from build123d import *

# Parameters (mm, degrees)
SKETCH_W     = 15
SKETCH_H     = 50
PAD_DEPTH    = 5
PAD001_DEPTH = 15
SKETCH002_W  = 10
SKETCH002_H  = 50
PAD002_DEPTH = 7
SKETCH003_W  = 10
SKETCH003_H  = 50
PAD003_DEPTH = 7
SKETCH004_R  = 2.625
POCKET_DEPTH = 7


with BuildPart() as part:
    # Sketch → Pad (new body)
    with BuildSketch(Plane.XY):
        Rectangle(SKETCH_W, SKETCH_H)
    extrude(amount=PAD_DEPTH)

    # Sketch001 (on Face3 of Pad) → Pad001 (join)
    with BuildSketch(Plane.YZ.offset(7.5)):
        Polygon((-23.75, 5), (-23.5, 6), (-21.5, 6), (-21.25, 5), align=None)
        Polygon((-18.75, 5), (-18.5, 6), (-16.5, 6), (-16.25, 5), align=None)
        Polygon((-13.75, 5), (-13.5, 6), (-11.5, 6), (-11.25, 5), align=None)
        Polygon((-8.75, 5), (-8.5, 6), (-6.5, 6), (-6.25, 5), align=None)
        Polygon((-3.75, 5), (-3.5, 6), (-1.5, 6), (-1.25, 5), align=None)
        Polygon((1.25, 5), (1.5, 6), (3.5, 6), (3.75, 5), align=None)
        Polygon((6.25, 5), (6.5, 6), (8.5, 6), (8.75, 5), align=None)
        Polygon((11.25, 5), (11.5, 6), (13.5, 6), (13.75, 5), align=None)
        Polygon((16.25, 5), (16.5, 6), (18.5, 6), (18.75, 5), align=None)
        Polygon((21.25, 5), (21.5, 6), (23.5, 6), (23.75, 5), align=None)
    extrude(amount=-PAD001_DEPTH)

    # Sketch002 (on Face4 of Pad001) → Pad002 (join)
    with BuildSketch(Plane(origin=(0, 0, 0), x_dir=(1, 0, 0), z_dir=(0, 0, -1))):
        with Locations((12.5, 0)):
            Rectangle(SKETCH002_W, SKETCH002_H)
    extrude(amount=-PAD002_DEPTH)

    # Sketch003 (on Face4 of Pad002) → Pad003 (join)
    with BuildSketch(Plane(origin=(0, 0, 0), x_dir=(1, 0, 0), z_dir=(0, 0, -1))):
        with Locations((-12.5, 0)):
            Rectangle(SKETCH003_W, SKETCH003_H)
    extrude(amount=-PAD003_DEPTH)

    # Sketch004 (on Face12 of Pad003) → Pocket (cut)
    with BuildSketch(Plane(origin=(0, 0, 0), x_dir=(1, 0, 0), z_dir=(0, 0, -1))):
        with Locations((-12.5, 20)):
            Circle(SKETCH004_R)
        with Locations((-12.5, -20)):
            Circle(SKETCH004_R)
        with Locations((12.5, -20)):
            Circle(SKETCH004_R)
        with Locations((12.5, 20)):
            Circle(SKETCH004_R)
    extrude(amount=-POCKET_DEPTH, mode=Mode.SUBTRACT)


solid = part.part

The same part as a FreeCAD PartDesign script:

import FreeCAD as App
import Part
import Sketcher

V = App.Vector

doc = App.newDocument("Part")
body = doc.addObject("PartDesign::Body", "Body")

sketch1 = doc.addObject("Sketcher::SketchObject", "Sketch")
body.addObject(sketch1)
sketch1.AttachmentSupport = (doc.XY_Plane, [""])
sketch1.MapMode = "FlatFace"
sketch1.addGeometry(Part.LineSegment(V(-8, 25, 0), V(-8, -25, 0)), False)
sketch1.addGeometry(Part.LineSegment(V(-8, -25, 0), V(8, -25, 0)), False)
sketch1.addGeometry(Part.LineSegment(V(8, -25, 0), V(8, 25, 0)), False)
sketch1.addGeometry(Part.LineSegment(V(8, 25, 0), V(-8, 25, 0)), False)
sketch1.addConstraint(Sketcher.Constraint("Coincident", 0, 2, 1, 1))
sketch1.addConstraint(Sketcher.Constraint("Coincident", 1, 2, 2, 1))
sketch1.addConstraint(Sketcher.Constraint("Coincident", 2, 2, 3, 1))
sketch1.addConstraint(Sketcher.Constraint("Coincident", 3, 2, 0, 1))
sketch1.addConstraint(Sketcher.Constraint("Vertical", 0))
sketch1.addConstraint(Sketcher.Constraint("Horizontal", 1))
sketch1.addConstraint(Sketcher.Constraint("Vertical", 2))
sketch1.addConstraint(Sketcher.Constraint("Horizontal", 3))
sketch1.addConstraint(Sketcher.Constraint("Symmetric", 0, 2, 2, 2, -1, 1))
sketch1.addConstraint(Sketcher.Constraint("DistanceX", 1, 1, 1, 2, 15.0))
sketch1.addConstraint(Sketcher.Constraint("DistanceY", 0, 2, 0, 1, 50.0))
pad1 = doc.addObject("PartDesign::Pad", "Pad")
body.addObject(pad1)
pad1.Profile = sketch1
pad1.Length = 5

sketch2 = doc.addObject("Sketcher::SketchObject", "Sketch001")
body.addObject(sketch2)
sketch2.AttachmentSupport = (doc.YZ_Plane, [""])
sketch2.MapMode = "FlatFace"
sketch2.AttachmentOffset = App.Placement(V(0, 0, 7.5), App.Rotation())
sketch2.addGeometry(Part.LineSegment(V(-23.5, 6, 0), V(-23.8, 5, 0)), False)
sketch2.addGeometry(Part.LineSegment(V(-23.8, 5, 0), V(-21.2, 5, 0)), False)
sketch2.addGeometry(Part.LineSegment(V(-21.2, 5, 0), V(-21.5, 6, 0)), False)
sketch2.addGeometry(Part.LineSegment(V(-21.5, 6, 0), V(-23.5, 6, 0)), False)
sketch2.addGeometry(Part.LineSegment(V(-18.5, 6, 0), V(-18.8, 5, 0)), False)
sketch2.addGeometry(Part.LineSegment(V(-18.8, 5, 0), V(-16.2, 5, 0)), False)
sketch2.addGeometry(Part.LineSegment(V(-16.2, 5, 0), V(-16.5, 6, 0)), False)
sketch2.addGeometry(Part.LineSegment(V(-16.5, 6, 0), V(-18.5, 6, 0)), False)
sketch2.addGeometry(Part.LineSegment(V(-13.5, 6, 0), V(-13.8, 5, 0)), False)
sketch2.addGeometry(Part.LineSegment(V(-13.8, 5, 0), V(-11.2, 5, 0)), False)
sketch2.addGeometry(Part.LineSegment(V(-11.2, 5, 0), V(-11.5, 6, 0)), False)
sketch2.addGeometry(Part.LineSegment(V(-11.5, 6, 0), V(-13.5, 6, 0)), False)
sketch2.addGeometry(Part.LineSegment(V(-8.5, 6, 0), V(-8.8, 5, 0)), False)
sketch2.addGeometry(Part.LineSegment(V(-8.8, 5, 0), V(-6.2, 5, 0)), False)
sketch2.addGeometry(Part.LineSegment(V(-6.2, 5, 0), V(-6.5, 6, 0)), False)
sketch2.addGeometry(Part.LineSegment(V(-6.5, 6, 0), V(-8.5, 6, 0)), False)
sketch2.addGeometry(Part.LineSegment(V(-3.5, 6, 0), V(-3.8, 5, 0)), False)
sketch2.addGeometry(Part.LineSegment(V(-3.8, 5, 0), V(-1.2, 5, 0)), False)
sketch2.addGeometry(Part.LineSegment(V(-1.2, 5, 0), V(-1.5, 6, 0)), False)
sketch2.addGeometry(Part.LineSegment(V(-1.5, 6, 0), V(-3.5, 6, 0)), False)
sketch2.addGeometry(Part.LineSegment(V(1.5, 6, 0), V(1.2, 5, 0)), False)
sketch2.addGeometry(Part.LineSegment(V(1.2, 5, 0), V(3.8, 5, 0)), False)
sketch2.addGeometry(Part.LineSegment(V(3.8, 5, 0), V(3.5, 6, 0)), False)
sketch2.addGeometry(Part.LineSegment(V(3.5, 6, 0), V(1.5, 6, 0)), False)
sketch2.addGeometry(Part.LineSegment(V(6.5, 6, 0), V(6.2, 5, 0)), False)
sketch2.addGeometry(Part.LineSegment(V(6.2, 5, 0), V(8.8, 5, 0)), False)
sketch2.addGeometry(Part.LineSegment(V(8.8, 5, 0), V(8.5, 6, 0)), False)
sketch2.addGeometry(Part.LineSegment(V(8.5, 6, 0), V(6.5, 6, 0)), False)
sketch2.addGeometry(Part.LineSegment(V(11.5, 6, 0), V(11.2, 5, 0)), False)
sketch2.addGeometry(Part.LineSegment(V(11.2, 5, 0), V(13.8, 5, 0)), False)
sketch2.addGeometry(Part.LineSegment(V(13.8, 5, 0), V(13.5, 6, 0)), False)
sketch2.addGeometry(Part.LineSegment(V(13.5, 6, 0), V(11.5, 6, 0)), False)
sketch2.addGeometry(Part.LineSegment(V(16.5, 6, 0), V(16.2, 5, 0)), False)
sketch2.addGeometry(Part.LineSegment(V(16.2, 5, 0), V(18.8, 5, 0)), False)
sketch2.addGeometry(Part.LineSegment(V(18.8, 5, 0), V(18.5, 6, 0)), False)
sketch2.addGeometry(Part.LineSegment(V(18.5, 6, 0), V(16.5, 6, 0)), False)
sketch2.addGeometry(Part.LineSegment(V(21.5, 6, 0), V(21.2, 5, 0)), False)
sketch2.addGeometry(Part.LineSegment(V(21.2, 5, 0), V(23.8, 5, 0)), False)
sketch2.addGeometry(Part.LineSegment(V(23.8, 5, 0), V(23.5, 6, 0)), False)
sketch2.addGeometry(Part.LineSegment(V(23.5, 6, 0), V(21.5, 6, 0)), False)
sketch2.addConstraint(Sketcher.Constraint("Coincident", 0, 2, 1, 1))
sketch2.addConstraint(Sketcher.Constraint("Coincident", 1, 2, 2, 1))
sketch2.addConstraint(Sketcher.Constraint("Coincident", 2, 2, 3, 1))
sketch2.addConstraint(Sketcher.Constraint("Coincident", 3, 2, 0, 1))
sketch2.addConstraint(Sketcher.Constraint("Coincident", 4, 2, 5, 1))
sketch2.addConstraint(Sketcher.Constraint("Coincident", 5, 2, 6, 1))
sketch2.addConstraint(Sketcher.Constraint("Coincident", 6, 2, 7, 1))
sketch2.addConstraint(Sketcher.Constraint("Coincident", 7, 2, 4, 1))
sketch2.addConstraint(Sketcher.Constraint("Coincident", 8, 2, 9, 1))
sketch2.addConstraint(Sketcher.Constraint("Coincident", 9, 2, 10, 1))
sketch2.addConstraint(Sketcher.Constraint("Coincident", 10, 2, 11, 1))
sketch2.addConstraint(Sketcher.Constraint("Coincident", 11, 2, 8, 1))
sketch2.addConstraint(Sketcher.Constraint("Coincident", 12, 2, 13, 1))
sketch2.addConstraint(Sketcher.Constraint("Coincident", 13, 2, 14, 1))
sketch2.addConstraint(Sketcher.Constraint("Coincident", 14, 2, 15, 1))
sketch2.addConstraint(Sketcher.Constraint("Coincident", 15, 2, 12, 1))
sketch2.addConstraint(Sketcher.Constraint("Coincident", 16, 2, 17, 1))
sketch2.addConstraint(Sketcher.Constraint("Coincident", 17, 2, 18, 1))
sketch2.addConstraint(Sketcher.Constraint("Coincident", 18, 2, 19, 1))
sketch2.addConstraint(Sketcher.Constraint("Coincident", 19, 2, 16, 1))
sketch2.addConstraint(Sketcher.Constraint("Coincident", 20, 2, 21, 1))
sketch2.addConstraint(Sketcher.Constraint("Coincident", 21, 2, 22, 1))
sketch2.addConstraint(Sketcher.Constraint("Coincident", 22, 2, 23, 1))
sketch2.addConstraint(Sketcher.Constraint("Coincident", 23, 2, 20, 1))
sketch2.addConstraint(Sketcher.Constraint("Coincident", 24, 2, 25, 1))
sketch2.addConstraint(Sketcher.Constraint("Coincident", 25, 2, 26, 1))
sketch2.addConstraint(Sketcher.Constraint("Coincident", 26, 2, 27, 1))
sketch2.addConstraint(Sketcher.Constraint("Coincident", 27, 2, 24, 1))
sketch2.addConstraint(Sketcher.Constraint("Coincident", 28, 2, 29, 1))
sketch2.addConstraint(Sketcher.Constraint("Coincident", 29, 2, 30, 1))
sketch2.addConstraint(Sketcher.Constraint("Coincident", 30, 2, 31, 1))
sketch2.addConstraint(Sketcher.Constraint("Coincident", 31, 2, 28, 1))
sketch2.addConstraint(Sketcher.Constraint("Coincident", 32, 2, 33, 1))
sketch2.addConstraint(Sketcher.Constraint("Coincident", 33, 2, 34, 1))
sketch2.addConstraint(Sketcher.Constraint("Coincident", 34, 2, 35, 1))
sketch2.addConstraint(Sketcher.Constraint("Coincident", 35, 2, 32, 1))
sketch2.addConstraint(Sketcher.Constraint("Coincident", 36, 2, 37, 1))
sketch2.addConstraint(Sketcher.Constraint("Coincident", 37, 2, 38, 1))
sketch2.addConstraint(Sketcher.Constraint("Coincident", 38, 2, 39, 1))
sketch2.addConstraint(Sketcher.Constraint("Coincident", 39, 2, 36, 1))
sketch2.addConstraint(Sketcher.Constraint("Horizontal", 1))
sketch2.addConstraint(Sketcher.Constraint("Horizontal", 3))
sketch2.addConstraint(Sketcher.Constraint("Horizontal", 5))
sketch2.addConstraint(Sketcher.Constraint("Horizontal", 7))
sketch2.addConstraint(Sketcher.Constraint("Horizontal", 9))
sketch2.addConstraint(Sketcher.Constraint("Horizontal", 11))
sketch2.addConstraint(Sketcher.Constraint("Horizontal", 13))
sketch2.addConstraint(Sketcher.Constraint("Horizontal", 15))
sketch2.addConstraint(Sketcher.Constraint("Horizontal", 17))
sketch2.addConstraint(Sketcher.Constraint("Horizontal", 19))
sketch2.addConstraint(Sketcher.Constraint("Horizontal", 21))
sketch2.addConstraint(Sketcher.Constraint("Horizontal", 23))
sketch2.addConstraint(Sketcher.Constraint("Horizontal", 25))
sketch2.addConstraint(Sketcher.Constraint("Horizontal", 27))
sketch2.addConstraint(Sketcher.Constraint("Horizontal", 29))
sketch2.addConstraint(Sketcher.Constraint("Horizontal", 31))
sketch2.addConstraint(Sketcher.Constraint("Horizontal", 33))
sketch2.addConstraint(Sketcher.Constraint("Horizontal", 35))
sketch2.addConstraint(Sketcher.Constraint("Horizontal", 37))
sketch2.addConstraint(Sketcher.Constraint("Horizontal", 39))
sketch2.addConstraint(Sketcher.Constraint("Symmetric", 17, 2, 20, 2, -2))
sketch2.addConstraint(Sketcher.Constraint("Symmetric", 19, 2, 22, 2, -2))
sketch2.addConstraint(Sketcher.Constraint("Symmetric", 13, 2, 24, 2, -2))
sketch2.addConstraint(Sketcher.Constraint("Symmetric", 15, 2, 26, 2, -2))
sketch2.addConstraint(Sketcher.Constraint("Symmetric", 9, 2, 28, 2, -2))
sketch2.addConstraint(Sketcher.Constraint("Symmetric", 11, 2, 30, 2, -2))
sketch2.addConstraint(Sketcher.Constraint("Symmetric", 5, 2, 32, 2, -2))
sketch2.addConstraint(Sketcher.Constraint("Symmetric", 7, 2, 34, 2, -2))
sketch2.addConstraint(Sketcher.Constraint("Symmetric", 1, 2, 36, 2, -2))
sketch2.addConstraint(Sketcher.Constraint("Symmetric", 3, 2, 38, 2, -2))
sketch2.addConstraint(Sketcher.Constraint("Parallel", 0, 4))
sketch2.addConstraint(Sketcher.Constraint("Parallel", 2, 6))
sketch2.addConstraint(Sketcher.Constraint("Parallel", 4, 8))
sketch2.addConstraint(Sketcher.Constraint("Parallel", 6, 10))
sketch2.addConstraint(Sketcher.Constraint("Parallel", 8, 12))
sketch2.addConstraint(Sketcher.Constraint("Parallel", 10, 14))
sketch2.addConstraint(Sketcher.Constraint("Parallel", 12, 16))
sketch2.addConstraint(Sketcher.Constraint("Parallel", 14, 18))
sketch2.addConstraint(Sketcher.Constraint("Parallel", 16, 20))
sketch2.addConstraint(Sketcher.Constraint("Parallel", 18, 22))
sketch2.addConstraint(Sketcher.Constraint("Parallel", 20, 24))
sketch2.addConstraint(Sketcher.Constraint("Parallel", 22, 26))
sketch2.addConstraint(Sketcher.Constraint("Parallel", 24, 28))
sketch2.addConstraint(Sketcher.Constraint("Parallel", 26, 30))
sketch2.addConstraint(Sketcher.Constraint("Parallel", 28, 32))
sketch2.addConstraint(Sketcher.Constraint("Parallel", 30, 34))
sketch2.addConstraint(Sketcher.Constraint("Parallel", 32, 36))
sketch2.addConstraint(Sketcher.Constraint("Parallel", 34, 38))
sketch2.addConstraint(Sketcher.Constraint("Horizontal", 1, 2, 4, 2))
sketch2.addConstraint(Sketcher.Constraint("Horizontal", 3, 2, 6, 2))
sketch2.addConstraint(Sketcher.Constraint("Horizontal", 5, 2, 8, 2))
sketch2.addConstraint(Sketcher.Constraint("Horizontal", 7, 2, 10, 2))
sketch2.addConstraint(Sketcher.Constraint("Horizontal", 9, 2, 12, 2))
sketch2.addConstraint(Sketcher.Constraint("Horizontal", 11, 2, 14, 2))
sketch2.addConstraint(Sketcher.Constraint("Horizontal", 13, 2, 16, 2))
sketch2.addConstraint(Sketcher.Constraint("Horizontal", 15, 2, 18, 2))
sketch2.addConstraint(Sketcher.Constraint("Equal", 1, 5))
sketch2.addConstraint(Sketcher.Constraint("Equal", 5, 9))
sketch2.addConstraint(Sketcher.Constraint("Equal", 9, 13))
sketch2.addConstraint(Sketcher.Constraint("Equal", 13, 17))
sketch2.addConstraint(Sketcher.Constraint("Equal", 17, 21))
sketch2.addConstraint(Sketcher.Constraint("DistanceX", 3, 2, 3, 1, 2.0))
sketch2.addConstraint(Sketcher.Constraint("DistanceX", 1, 1, 1, 2, 2.5))
sketch2.addConstraint(Sketcher.Constraint("DistanceY", -1, 1, 0, 2, 5.0))
sketch2.addConstraint(Sketcher.Constraint("DistanceY", -1, 1, 2, 2, 6.0))
sketch2.addConstraint(Sketcher.Constraint("DistanceX", 0, 2, 4, 2, 5.0))
sketch2.addConstraint(Sketcher.Constraint("DistanceX", 4, 2, 8, 2, 5.0))
sketch2.addConstraint(Sketcher.Constraint("DistanceX", 8, 2, 12, 2, 5.0))
sketch2.addConstraint(Sketcher.Constraint("DistanceX", 12, 2, 16, 2, 5.0))
sketch2.addConstraint(Sketcher.Constraint("DistanceX", 16, 2, 20, 2, 5.0))
pad2 = doc.addObject("PartDesign::Pad", "Pad001")
body.addObject(pad2)
pad2.Profile = sketch2
pad2.Length = 15
pad2.Reversed = True

sketch3 = doc.addObject("Sketcher::SketchObject", "Sketch002")
body.addObject(sketch3)
sketch3.AttachmentSupport = (doc.XY_Plane, [""])
sketch3.MapMode = "FlatFace"
sketch3.addGeometry(Part.LineSegment(V(8, -25, 0), V(8, 25, 0)), False)
sketch3.addGeometry(Part.LineSegment(V(8, 25, 0), V(18, 25, 0)), False)
sketch3.addGeometry(Part.LineSegment(V(18, 25, 0), V(18, -25, 0)), False)
sketch3.addGeometry(Part.LineSegment(V(18, -25, 0), V(8, -25, 0)), False)
sketch3.addConstraint(Sketcher.Constraint("Coincident", 0, 2, 1, 1))
sketch3.addConstraint(Sketcher.Constraint("Coincident", 1, 2, 2, 1))
sketch3.addConstraint(Sketcher.Constraint("Coincident", 2, 2, 3, 1))
sketch3.addConstraint(Sketcher.Constraint("Coincident", 3, 2, 0, 1))
sketch3.addConstraint(Sketcher.Constraint("Vertical", 0))
sketch3.addConstraint(Sketcher.Constraint("Horizontal", 1))
sketch3.addConstraint(Sketcher.Constraint("Vertical", 2))
sketch3.addConstraint(Sketcher.Constraint("Horizontal", 3))
sketch3.addConstraint(Sketcher.Constraint("DistanceX", 1, 1, 1, 2, 10.0))
sketch3.addConstraint(Sketcher.Constraint("DistanceY", 0, 1, 0, 2, 50.0))
sketch3.addConstraint(Sketcher.Constraint("DistanceY", -1, 1, 0, 2, 25.0))
sketch3.addConstraint(Sketcher.Constraint("DistanceX", -1, 1, 0, 2, 7.5))
pad3 = doc.addObject("PartDesign::Pad", "Pad002")
body.addObject(pad3)
pad3.Profile = sketch3
pad3.Length = 7

sketch4 = doc.addObject("Sketcher::SketchObject", "Sketch003")
body.addObject(sketch4)
sketch4.AttachmentSupport = (doc.XY_Plane, [""])
sketch4.MapMode = "FlatFace"
sketch4.addGeometry(Part.LineSegment(V(-18, -25, 0), V(-18, 25, 0)), False)
sketch4.addGeometry(Part.LineSegment(V(-18, 25, 0), V(-8, 25, 0)), False)
sketch4.addGeometry(Part.LineSegment(V(-8, 25, 0), V(-8, -25, 0)), False)
sketch4.addGeometry(Part.LineSegment(V(-8, -25, 0), V(-18, -25, 0)), False)
sketch4.addConstraint(Sketcher.Constraint("Coincident", 0, 2, 1, 1))
sketch4.addConstraint(Sketcher.Constraint("Coincident", 1, 2, 2, 1))
sketch4.addConstraint(Sketcher.Constraint("Coincident", 2, 2, 3, 1))
sketch4.addConstraint(Sketcher.Constraint("Coincident", 3, 2, 0, 1))
sketch4.addConstraint(Sketcher.Constraint("Vertical", 0))
sketch4.addConstraint(Sketcher.Constraint("Horizontal", 1))
sketch4.addConstraint(Sketcher.Constraint("Vertical", 2))
sketch4.addConstraint(Sketcher.Constraint("Horizontal", 3))
sketch4.addConstraint(Sketcher.Constraint("DistanceX", 1, 1, 1, 2, 10.0))
sketch4.addConstraint(Sketcher.Constraint("DistanceY", 0, 1, 0, 2, 50.0))
sketch4.addConstraint(Sketcher.Constraint("DistanceY", -1, 1, 0, 2, 25.0))
sketch4.addConstraint(Sketcher.Constraint("DistanceX", 0, 2, -1, 1, 17.5))
pad4 = doc.addObject("PartDesign::Pad", "Pad003")
body.addObject(pad4)
pad4.Profile = sketch4
pad4.Length = 7

sketch5 = doc.addObject("Sketcher::SketchObject", "Sketch004")
body.addObject(sketch5)
sketch5.AttachmentSupport = (doc.XY_Plane, [""])
sketch5.MapMode = "FlatFace"
sketch5.addGeometry(Part.Circle(V(-12.5, -20, 0), V(0, 0, 1), 2.6), False)
sketch5.addGeometry(Part.Circle(V(-12.5, 20, 0), V(0, 0, 1), 2.6), False)
sketch5.addGeometry(Part.Circle(V(12.5, 20, 0), V(0, 0, 1), 2.6), False)
sketch5.addGeometry(Part.Circle(V(12.5, -20, 0), V(0, 0, 1), 2.6), False)
sketch5.addConstraint(Sketcher.Constraint("Equal", 0, 1))
sketch5.addConstraint(Sketcher.Constraint("Equal", 1, 2))
sketch5.addConstraint(Sketcher.Constraint("Equal", 2, 3))
sketch5.addConstraint(Sketcher.Constraint("Symmetric", 0, 3, 2, 3, -1, 1))
sketch5.addConstraint(Sketcher.Constraint("Symmetric", 1, 3, 3, 3, -1, 1))
sketch5.addConstraint(Sketcher.Constraint("Symmetric", 1, 3, 2, 3, -2))
sketch5.addConstraint(Sketcher.Constraint("Diameter", 0, 5.25))
sketch5.addConstraint(Sketcher.Constraint("DistanceY", 0, 3, -1, 1, 20.0))
sketch5.addConstraint(Sketcher.Constraint("DistanceX", 1, 3, 2, 3, 25.0))
pocket1 = doc.addObject("PartDesign::Pocket", "Pocket")
body.addObject(pocket1)
pocket1.Profile = sketch5
pocket1.Length = 7
pocket1.Reversed = True

doc.recompute()
